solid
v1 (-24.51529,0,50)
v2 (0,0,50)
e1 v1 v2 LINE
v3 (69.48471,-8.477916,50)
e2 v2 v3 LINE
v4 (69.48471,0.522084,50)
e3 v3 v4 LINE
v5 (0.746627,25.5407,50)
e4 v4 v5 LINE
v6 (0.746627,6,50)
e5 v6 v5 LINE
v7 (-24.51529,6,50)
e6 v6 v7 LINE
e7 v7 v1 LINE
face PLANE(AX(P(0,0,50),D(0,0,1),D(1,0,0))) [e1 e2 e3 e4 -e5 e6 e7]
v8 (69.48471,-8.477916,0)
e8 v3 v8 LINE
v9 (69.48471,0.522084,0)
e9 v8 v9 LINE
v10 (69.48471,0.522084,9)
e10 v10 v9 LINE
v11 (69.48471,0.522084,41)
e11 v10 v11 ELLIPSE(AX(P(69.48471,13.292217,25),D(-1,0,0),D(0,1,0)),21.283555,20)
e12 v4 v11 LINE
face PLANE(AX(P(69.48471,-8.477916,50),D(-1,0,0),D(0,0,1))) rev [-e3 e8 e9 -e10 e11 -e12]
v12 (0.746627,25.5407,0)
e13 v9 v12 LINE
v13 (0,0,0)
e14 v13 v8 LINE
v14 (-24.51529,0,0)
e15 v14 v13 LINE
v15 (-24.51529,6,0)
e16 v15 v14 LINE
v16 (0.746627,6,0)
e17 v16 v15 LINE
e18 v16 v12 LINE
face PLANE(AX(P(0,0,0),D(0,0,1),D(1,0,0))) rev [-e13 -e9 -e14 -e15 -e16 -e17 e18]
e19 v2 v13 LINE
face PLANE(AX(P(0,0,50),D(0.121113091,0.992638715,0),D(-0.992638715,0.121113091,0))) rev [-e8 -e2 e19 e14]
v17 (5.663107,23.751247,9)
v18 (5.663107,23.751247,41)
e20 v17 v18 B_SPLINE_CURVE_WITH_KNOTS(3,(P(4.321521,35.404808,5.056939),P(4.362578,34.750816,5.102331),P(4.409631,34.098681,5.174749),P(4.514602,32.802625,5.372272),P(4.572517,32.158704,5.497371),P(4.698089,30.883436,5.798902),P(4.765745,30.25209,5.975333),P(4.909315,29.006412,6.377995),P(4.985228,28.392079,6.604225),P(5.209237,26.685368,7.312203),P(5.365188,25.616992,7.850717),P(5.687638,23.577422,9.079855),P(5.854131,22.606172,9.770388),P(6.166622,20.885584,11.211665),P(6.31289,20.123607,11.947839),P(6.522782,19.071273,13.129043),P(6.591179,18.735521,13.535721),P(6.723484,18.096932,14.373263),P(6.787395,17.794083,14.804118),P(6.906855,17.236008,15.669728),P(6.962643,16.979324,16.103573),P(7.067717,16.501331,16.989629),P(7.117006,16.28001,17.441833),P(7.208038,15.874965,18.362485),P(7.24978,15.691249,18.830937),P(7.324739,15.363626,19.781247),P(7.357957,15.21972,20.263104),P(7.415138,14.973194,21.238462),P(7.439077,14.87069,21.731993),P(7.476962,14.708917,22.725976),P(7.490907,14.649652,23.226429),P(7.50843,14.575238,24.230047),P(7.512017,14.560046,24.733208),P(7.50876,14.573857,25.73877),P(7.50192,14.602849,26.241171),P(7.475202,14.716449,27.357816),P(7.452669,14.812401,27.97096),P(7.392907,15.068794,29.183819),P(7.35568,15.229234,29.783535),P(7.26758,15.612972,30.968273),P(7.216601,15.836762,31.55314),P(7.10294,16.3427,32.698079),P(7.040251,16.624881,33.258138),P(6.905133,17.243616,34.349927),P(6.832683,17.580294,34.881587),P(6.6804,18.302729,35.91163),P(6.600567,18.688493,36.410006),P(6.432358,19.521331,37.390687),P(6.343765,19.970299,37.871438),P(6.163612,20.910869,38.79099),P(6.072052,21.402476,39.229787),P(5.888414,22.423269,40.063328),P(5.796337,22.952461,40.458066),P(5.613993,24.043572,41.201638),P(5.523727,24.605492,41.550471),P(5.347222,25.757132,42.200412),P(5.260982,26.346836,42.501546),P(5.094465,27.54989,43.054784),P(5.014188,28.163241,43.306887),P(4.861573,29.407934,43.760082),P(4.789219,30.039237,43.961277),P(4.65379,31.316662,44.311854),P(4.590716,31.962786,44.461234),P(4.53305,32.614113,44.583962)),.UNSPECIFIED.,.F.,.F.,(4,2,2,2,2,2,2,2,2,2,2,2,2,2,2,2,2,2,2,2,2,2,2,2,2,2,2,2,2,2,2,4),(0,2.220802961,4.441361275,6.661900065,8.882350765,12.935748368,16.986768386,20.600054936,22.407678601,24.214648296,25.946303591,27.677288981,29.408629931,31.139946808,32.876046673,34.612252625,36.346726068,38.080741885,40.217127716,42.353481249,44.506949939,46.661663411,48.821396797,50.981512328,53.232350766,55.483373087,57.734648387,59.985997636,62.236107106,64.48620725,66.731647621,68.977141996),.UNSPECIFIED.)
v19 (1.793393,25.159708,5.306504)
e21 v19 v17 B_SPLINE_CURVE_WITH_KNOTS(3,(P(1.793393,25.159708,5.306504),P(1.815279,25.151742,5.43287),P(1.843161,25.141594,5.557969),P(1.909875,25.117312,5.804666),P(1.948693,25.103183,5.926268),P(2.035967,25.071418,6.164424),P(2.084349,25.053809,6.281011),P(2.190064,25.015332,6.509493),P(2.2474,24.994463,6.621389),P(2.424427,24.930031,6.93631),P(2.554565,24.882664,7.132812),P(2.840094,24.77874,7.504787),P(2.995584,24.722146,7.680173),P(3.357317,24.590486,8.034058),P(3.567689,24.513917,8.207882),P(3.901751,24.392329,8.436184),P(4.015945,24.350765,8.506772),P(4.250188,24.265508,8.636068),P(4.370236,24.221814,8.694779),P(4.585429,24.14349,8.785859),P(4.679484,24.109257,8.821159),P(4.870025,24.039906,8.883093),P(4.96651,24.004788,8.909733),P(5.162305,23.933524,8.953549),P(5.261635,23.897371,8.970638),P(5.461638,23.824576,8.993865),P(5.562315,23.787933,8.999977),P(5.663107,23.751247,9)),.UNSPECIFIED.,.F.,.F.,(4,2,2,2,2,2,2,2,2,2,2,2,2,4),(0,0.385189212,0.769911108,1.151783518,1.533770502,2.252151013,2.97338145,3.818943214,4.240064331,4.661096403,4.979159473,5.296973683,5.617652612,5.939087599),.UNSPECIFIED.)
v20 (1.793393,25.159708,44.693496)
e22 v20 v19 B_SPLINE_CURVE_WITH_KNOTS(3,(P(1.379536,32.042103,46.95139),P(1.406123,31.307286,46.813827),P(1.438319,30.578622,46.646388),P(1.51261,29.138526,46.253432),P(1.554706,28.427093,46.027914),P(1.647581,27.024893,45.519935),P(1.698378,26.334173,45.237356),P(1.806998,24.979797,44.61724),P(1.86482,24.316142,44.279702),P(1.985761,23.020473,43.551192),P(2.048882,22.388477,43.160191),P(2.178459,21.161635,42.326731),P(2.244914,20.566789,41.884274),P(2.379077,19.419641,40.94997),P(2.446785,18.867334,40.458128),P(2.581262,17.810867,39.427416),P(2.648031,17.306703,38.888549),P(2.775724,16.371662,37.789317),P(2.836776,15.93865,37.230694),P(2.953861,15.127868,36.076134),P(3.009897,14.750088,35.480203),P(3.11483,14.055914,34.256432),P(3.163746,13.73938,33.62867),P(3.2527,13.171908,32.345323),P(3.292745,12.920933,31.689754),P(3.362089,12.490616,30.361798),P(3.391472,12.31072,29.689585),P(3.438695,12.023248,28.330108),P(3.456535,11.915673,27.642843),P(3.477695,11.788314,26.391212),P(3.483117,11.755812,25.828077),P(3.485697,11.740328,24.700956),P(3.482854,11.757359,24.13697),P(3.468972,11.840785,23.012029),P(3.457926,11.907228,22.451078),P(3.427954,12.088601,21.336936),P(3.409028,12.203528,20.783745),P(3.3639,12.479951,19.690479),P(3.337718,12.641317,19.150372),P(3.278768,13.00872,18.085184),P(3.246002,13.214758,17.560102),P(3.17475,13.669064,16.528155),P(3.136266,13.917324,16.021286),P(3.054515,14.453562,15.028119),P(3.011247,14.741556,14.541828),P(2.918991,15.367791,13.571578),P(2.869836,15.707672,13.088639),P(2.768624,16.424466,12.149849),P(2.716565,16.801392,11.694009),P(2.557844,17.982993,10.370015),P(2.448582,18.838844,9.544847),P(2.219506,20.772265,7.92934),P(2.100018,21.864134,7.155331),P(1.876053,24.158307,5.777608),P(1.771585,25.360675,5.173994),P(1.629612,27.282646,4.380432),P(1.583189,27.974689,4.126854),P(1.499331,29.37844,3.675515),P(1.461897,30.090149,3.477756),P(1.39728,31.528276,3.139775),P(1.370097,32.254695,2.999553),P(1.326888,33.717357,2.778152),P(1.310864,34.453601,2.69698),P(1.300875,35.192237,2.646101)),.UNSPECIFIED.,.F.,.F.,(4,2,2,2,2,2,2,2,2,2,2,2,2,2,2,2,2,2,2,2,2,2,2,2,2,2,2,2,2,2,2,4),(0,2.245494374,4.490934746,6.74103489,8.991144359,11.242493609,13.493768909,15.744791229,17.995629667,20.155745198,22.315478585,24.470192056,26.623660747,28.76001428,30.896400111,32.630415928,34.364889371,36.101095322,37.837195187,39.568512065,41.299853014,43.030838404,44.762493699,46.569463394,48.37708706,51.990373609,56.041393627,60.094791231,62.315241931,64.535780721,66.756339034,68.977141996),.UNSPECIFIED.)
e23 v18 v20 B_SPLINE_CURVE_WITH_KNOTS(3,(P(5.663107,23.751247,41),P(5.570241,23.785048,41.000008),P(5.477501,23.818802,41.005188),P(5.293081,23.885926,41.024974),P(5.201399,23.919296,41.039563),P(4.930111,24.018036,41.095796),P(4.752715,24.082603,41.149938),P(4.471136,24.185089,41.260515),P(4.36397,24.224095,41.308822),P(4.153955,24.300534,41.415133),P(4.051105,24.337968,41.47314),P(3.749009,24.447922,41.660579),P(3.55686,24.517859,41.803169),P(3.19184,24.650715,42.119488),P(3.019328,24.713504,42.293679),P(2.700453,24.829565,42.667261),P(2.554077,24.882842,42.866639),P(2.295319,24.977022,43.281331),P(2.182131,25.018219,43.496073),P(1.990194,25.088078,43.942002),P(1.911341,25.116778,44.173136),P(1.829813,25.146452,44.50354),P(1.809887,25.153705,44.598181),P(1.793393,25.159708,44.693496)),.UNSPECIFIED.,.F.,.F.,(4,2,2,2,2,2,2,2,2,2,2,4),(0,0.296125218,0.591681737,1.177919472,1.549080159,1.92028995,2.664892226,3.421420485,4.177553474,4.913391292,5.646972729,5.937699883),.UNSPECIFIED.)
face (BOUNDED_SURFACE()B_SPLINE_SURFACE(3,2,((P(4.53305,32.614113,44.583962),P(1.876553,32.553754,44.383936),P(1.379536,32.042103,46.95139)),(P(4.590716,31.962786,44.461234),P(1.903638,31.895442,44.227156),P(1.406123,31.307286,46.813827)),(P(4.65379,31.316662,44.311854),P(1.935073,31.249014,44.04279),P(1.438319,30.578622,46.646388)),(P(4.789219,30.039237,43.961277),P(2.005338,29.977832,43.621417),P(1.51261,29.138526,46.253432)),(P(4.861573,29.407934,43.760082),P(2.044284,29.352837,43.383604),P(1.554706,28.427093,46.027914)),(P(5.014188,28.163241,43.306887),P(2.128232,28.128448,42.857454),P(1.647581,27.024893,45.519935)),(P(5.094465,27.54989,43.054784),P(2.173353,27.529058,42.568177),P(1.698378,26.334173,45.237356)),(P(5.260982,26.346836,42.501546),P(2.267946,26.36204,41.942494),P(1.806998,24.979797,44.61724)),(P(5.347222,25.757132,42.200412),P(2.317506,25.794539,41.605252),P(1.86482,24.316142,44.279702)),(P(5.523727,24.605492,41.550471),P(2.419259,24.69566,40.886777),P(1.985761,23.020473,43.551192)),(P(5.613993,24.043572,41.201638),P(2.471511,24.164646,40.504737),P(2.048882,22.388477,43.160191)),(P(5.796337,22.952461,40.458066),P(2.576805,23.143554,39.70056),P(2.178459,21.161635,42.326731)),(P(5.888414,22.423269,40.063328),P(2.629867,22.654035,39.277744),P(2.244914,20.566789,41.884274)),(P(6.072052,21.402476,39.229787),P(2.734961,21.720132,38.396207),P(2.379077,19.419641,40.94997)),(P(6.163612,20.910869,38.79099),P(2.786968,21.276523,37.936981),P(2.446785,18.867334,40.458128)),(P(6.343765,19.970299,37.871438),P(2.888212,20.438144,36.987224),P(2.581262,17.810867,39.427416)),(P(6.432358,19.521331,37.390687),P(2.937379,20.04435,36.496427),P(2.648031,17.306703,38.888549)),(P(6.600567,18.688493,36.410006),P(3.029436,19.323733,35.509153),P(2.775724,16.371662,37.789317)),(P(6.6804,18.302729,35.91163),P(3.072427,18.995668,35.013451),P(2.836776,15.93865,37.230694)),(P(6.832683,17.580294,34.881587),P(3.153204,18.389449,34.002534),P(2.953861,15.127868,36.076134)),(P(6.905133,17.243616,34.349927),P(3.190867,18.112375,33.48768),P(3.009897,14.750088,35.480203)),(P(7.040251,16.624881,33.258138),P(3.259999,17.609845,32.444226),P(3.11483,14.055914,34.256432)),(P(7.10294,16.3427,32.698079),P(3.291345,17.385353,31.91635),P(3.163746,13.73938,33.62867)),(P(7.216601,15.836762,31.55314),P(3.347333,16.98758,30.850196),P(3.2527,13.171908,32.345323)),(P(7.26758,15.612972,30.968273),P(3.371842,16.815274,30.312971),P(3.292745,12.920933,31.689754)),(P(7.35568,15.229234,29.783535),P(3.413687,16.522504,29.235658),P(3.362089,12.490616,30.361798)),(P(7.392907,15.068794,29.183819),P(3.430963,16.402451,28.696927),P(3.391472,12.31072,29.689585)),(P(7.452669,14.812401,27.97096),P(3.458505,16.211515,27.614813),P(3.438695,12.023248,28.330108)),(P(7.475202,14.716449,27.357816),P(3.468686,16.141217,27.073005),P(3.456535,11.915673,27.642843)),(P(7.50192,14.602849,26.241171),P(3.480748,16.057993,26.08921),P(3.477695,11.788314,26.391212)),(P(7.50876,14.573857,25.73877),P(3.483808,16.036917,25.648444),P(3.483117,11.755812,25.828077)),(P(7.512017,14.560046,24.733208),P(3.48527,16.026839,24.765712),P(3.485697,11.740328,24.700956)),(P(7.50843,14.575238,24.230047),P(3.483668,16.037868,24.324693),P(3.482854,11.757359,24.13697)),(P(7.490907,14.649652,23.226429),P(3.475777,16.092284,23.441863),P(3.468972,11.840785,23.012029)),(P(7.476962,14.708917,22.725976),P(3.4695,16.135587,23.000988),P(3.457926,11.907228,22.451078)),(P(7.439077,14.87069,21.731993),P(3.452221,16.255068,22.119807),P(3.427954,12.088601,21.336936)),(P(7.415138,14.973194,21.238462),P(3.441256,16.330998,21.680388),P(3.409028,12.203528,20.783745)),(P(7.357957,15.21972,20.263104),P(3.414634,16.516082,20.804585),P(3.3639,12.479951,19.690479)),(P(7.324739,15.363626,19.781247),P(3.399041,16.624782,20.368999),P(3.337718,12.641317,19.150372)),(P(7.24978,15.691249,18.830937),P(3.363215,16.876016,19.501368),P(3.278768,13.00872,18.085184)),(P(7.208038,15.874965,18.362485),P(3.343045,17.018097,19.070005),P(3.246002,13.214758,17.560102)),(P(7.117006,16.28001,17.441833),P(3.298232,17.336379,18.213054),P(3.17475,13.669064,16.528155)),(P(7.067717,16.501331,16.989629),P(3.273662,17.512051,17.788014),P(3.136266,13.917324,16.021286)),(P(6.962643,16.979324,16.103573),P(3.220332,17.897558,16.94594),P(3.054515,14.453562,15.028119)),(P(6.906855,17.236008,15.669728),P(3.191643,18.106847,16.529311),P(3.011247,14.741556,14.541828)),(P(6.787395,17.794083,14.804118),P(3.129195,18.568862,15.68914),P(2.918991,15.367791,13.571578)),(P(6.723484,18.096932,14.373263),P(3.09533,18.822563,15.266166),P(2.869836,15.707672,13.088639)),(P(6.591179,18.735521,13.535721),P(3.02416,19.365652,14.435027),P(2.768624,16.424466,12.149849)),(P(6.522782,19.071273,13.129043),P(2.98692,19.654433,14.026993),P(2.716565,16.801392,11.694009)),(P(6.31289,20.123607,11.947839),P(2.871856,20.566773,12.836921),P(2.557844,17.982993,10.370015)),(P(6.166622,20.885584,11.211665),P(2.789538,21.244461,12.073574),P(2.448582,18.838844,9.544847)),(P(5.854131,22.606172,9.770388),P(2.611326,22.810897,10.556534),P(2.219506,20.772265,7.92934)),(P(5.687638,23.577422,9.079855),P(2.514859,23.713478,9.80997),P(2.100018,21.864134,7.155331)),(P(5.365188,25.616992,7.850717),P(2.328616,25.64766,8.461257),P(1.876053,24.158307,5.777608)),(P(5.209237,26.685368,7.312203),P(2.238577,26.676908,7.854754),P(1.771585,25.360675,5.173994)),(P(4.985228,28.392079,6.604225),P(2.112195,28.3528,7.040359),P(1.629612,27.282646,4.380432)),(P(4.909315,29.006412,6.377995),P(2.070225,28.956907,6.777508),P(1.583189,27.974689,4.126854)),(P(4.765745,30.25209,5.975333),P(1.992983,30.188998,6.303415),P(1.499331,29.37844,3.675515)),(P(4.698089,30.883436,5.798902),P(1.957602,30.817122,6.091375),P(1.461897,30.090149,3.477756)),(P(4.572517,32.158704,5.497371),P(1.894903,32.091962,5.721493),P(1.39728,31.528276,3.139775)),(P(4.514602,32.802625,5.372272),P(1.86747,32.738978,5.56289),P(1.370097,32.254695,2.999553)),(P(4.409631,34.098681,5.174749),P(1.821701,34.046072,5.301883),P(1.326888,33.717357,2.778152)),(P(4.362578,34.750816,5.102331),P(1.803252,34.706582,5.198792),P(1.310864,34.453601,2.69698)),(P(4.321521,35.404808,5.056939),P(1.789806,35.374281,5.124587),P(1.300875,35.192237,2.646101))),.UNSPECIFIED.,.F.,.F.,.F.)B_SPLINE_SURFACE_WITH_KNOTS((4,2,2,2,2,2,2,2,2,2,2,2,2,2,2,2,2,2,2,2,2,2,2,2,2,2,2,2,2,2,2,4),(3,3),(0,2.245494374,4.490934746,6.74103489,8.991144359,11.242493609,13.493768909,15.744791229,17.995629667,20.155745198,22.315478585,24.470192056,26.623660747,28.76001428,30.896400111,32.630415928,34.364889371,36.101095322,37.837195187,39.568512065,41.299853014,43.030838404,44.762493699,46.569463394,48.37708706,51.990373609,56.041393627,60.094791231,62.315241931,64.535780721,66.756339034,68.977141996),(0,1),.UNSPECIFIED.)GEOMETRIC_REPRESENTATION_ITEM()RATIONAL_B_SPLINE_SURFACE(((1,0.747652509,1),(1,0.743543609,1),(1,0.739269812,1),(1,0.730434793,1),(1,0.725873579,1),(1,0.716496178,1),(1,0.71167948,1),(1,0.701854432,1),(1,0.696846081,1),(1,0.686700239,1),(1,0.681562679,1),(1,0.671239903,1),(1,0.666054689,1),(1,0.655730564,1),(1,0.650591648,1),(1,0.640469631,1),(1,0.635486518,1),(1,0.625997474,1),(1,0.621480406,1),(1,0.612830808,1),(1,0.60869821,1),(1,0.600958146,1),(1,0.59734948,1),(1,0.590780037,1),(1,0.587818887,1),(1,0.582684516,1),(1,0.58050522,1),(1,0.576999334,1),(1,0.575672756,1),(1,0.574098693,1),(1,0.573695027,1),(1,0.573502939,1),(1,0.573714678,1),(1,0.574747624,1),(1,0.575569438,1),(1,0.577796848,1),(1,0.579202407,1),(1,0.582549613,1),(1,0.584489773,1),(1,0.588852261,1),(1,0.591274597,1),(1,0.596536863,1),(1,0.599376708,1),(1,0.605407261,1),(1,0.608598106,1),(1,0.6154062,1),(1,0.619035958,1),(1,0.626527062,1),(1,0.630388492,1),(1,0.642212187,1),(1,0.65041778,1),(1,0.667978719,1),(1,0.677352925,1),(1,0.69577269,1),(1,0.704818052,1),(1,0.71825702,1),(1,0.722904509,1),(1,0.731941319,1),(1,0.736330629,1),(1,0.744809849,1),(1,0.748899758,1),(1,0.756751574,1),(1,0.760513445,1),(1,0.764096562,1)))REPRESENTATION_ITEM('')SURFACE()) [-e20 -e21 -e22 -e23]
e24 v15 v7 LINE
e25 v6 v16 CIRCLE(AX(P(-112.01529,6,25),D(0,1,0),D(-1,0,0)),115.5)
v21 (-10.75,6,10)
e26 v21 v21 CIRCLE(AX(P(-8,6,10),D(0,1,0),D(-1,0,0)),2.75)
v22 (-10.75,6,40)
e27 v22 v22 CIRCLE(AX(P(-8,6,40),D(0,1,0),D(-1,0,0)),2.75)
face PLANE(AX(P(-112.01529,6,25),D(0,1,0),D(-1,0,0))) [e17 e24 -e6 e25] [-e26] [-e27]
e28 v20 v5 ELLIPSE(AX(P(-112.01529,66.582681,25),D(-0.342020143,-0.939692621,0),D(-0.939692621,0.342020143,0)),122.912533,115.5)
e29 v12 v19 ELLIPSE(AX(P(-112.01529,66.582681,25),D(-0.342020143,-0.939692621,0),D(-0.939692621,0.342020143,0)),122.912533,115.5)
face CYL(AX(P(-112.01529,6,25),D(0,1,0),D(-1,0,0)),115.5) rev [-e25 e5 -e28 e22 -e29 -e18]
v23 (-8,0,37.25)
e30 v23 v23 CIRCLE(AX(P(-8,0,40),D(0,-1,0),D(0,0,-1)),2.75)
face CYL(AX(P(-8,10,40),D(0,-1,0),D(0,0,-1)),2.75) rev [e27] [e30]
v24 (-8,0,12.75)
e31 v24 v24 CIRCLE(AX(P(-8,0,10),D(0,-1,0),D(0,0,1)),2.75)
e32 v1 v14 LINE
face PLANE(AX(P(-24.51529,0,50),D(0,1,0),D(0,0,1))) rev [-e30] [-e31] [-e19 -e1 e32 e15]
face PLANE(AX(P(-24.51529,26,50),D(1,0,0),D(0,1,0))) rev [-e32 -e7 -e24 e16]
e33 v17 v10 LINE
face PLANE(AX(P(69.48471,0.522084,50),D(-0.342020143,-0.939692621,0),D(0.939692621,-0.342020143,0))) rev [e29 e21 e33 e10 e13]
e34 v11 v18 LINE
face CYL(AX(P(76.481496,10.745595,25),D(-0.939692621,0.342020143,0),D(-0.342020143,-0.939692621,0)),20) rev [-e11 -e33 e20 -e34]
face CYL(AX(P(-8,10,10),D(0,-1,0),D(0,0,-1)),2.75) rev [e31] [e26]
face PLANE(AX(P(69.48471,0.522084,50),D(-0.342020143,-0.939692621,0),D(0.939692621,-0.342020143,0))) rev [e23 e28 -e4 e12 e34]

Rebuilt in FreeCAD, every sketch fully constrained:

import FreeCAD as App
import Part
import Sketcher
from FreeCAD import Vector
Q = App.Units.Quantity


def edges_at(feature, points):
    """Names of the edges that pass closest to the given points."""
    edges = feature.Shape.Edges
    near = lambda p: min(range(len(edges)), key=lambda i: edges[i].distToShape(Part.Vertex(*p))[0])
    return sorted({f"Edge{near(p) + 1}" for p in points})


def add_polygon(sketch, points):
    """Adds a closed chain of lines whose ends are joined by coincident constraints."""
    first, n = sketch.GeometryCount, len(points)
    for a, b in zip(points, points[1:] + points[:1]):
        sketch.addGeometry(Part.LineSegment(App.Vector(*a, 0), App.Vector(*b, 0)), False)
    for i in range(n):
        sketch.addConstraint(Sketcher.Constraint("Coincident", first + i, 2, first + (i + 1) % n, 1))

doc = App.newDocument("Part")
params = doc.addObject("Spreadsheet::Sheet", "Params")
for row, (alias, value) in enumerate([
    ("sketch1_width", "24 mm"),
    ("sketch1_height", "9 mm"),
    ("sketch1_height2", "26 mm"),
    ("sketch1_length", "70 mm"),
    ("pad1_length", "50 mm"),
    ("sketch2_diameter", "40 mm"),
    ("sketch3_diameter", "231 mm"),
    ("pocket2_length", "20 mm"),
    ("sketch4_diameter", "5.5 mm"),
    ("pocket3_length", "10 mm"),
    ("fillet_radius", "3 mm"),
], start=1):
    params.set(f"A{row}", alias)
    params.set(f"B{row}", "=" + value)
    params.setAlias(f"B{row}", alias)

body = doc.addObject("PartDesign::Body", "Body")

sketch1 = body.newObject("Sketcher::SketchObject", "Sketch")
sketch1.AttachmentSupport = (doc.getObject("XY_Plane"), [""])
sketch1.MapMode = "FlatFace"
add_polygon(sketch1, [(-25, 0), (0, 0), (69, -8), (69, 1), (-1, 26), (-25, 26)])
sketch1.addConstraint([
    Sketcher.Constraint("Horizontal", 0),
    Sketcher.Constraint("Vertical", 2),
    Sketcher.Constraint("Horizontal", 4),
    Sketcher.Constraint("Vertical", 5),
    Sketcher.Constraint("Coincident", 0, 2, -1, 1),
    Sketcher.Constraint("DistanceX", 4, 2, 4, 1, Q("24 mm")),
    Sketcher.Constraint("DistanceY", 2, 1, 2, 2, Q("9 mm")),
    Sketcher.Constraint("DistanceY", 5, 2, 5, 1, Q("26 mm")),
    Sketcher.Constraint("Angle", 3, Q("160 deg")),
    Sketcher.Constraint("Distance", 1, Q("70 mm")),
    Sketcher.Constraint("DistanceX", 3, 2, 2, 2, Q("70 mm")),
])
sketch1.setExpression("Constraints[11]", "Params.sketch1_width")
sketch1.setExpression("Constraints[12]", "Params.sketch1_height")
sketch1.setExpression("Constraints[13]", "Params.sketch1_height2")
sketch1.setExpression("Constraints[15]", "Params.sketch1_length")
pad1 = body.newObject("PartDesign::Pad", "Pad")
pad1.Profile = sketch1
pad1.setExpression("Length", "Params.pad1_length")

sketch2 = body.newObject("Sketcher::SketchObject", "Sketch001")
sketch2.Placement = App.Placement(Vector(-8.811251, 3.207033, 0), App.Rotation(Vector(0, 0, 1), Vector(0.342020143, 0.939692621, 0), Vector(-0.939692621, 0.342020143, 0), "ZXY"))
sketch2.addGeometry(Part.Circle(Vector(25, 36, 0), Vector(0, 0, 1), 20), False)
sketch2.addConstraint([
    Sketcher.Constraint("Diameter", 0, Q("40 mm")),
    Sketcher.Constraint("DistanceX", -1, 1, 0, 3, Q("25 mm")),
    Sketcher.Constraint("DistanceY", -1, 1, 0, 3, Q("36.255769 mm")),
])
sketch2.setExpression("Constraints[0]", "Params.sketch2_diameter")
pocket1 = body.newObject("PartDesign::Pocket", "Pocket")
pocket1.Profile = sketch2
pocket1.Type = "ThroughAll"

sketch3 = body.newObject("Sketcher::SketchObject", "Sketch002")
sketch3.AttachmentSupport = (doc.getObject("XZ_Plane"), [""])
sketch3.MapMode = "FlatFace"
sketch3.AttachmentOffset = App.Placement(Vector(0, 0, -26), App.Rotation())
sketch3.addGeometry(Part.Circle(Vector(-112, 25, 0), Vector(0, 0, 1), 116), False)
sketch3.addConstraint([
    Sketcher.Constraint("Diameter", 0, Q("231 mm")),
    Sketcher.Constraint("DistanceY", -1, 1, 0, 3, Q("25 mm")),
    Sketcher.Constraint("DistanceX", 0, 3, -1, 1, Q("112.01529 mm")),
])
sketch3.setExpression("Constraints[0]", "Params.sketch3_diameter")
pocket2 = body.newObject("PartDesign::Pocket", "Pocket001")
pocket2.Profile = sketch3
pocket2.setExpression("Length", "Params.pocket2_length")
pocket2.Reversed = True

sketch4 = body.newObject("Sketcher::SketchObject", "Sketch003")
sketch4.AttachmentSupport = (doc.getObject("XZ_Plane"), [""])
sketch4.MapMode = "FlatFace"
sketch4.addGeometry([
    Part.Circle(Vector(-8, 40, 0), Vector(0, 0, 1), 2.8),
    Part.Circle(Vector(-8, 10, 0), Vector(0, 0, 1), 2.8),
], False)
sketch4.addConstraint([
    Sketcher.Constraint("Equal", 0, 1),
    Sketcher.Constraint("Vertical", 0, 3, 1, 3),
    Sketcher.Constraint("Diameter", 0, Q("5.5 mm")),
    Sketcher.Constraint("DistanceX", 0, 3, -1, 1, Q("8 mm")),
    Sketcher.Constraint("DistanceY", -1, 1, 0, 3, Q("40 mm")),
    Sketcher.Constraint("DistanceY", -1, 1, 1, 3, Q("10 mm")),
])
sketch4.setExpression("Constraints[2]", "Params.sketch4_diameter")
pocket3 = body.newObject("PartDesign::Pocket", "Pocket002")
pocket3.Profile = sketch4
pocket3.setExpression("Length", "Params.pocket3_length")
doc.recompute()

fillet = body.newObject("PartDesign::Fillet", "Fillet")
fillet.Base = (pocket3, edges_at(pocket3, [(3.485, 16.031, 25)]))
fillet.setExpression("Radius", "Params.fillet_radius")

doc.recompute()
